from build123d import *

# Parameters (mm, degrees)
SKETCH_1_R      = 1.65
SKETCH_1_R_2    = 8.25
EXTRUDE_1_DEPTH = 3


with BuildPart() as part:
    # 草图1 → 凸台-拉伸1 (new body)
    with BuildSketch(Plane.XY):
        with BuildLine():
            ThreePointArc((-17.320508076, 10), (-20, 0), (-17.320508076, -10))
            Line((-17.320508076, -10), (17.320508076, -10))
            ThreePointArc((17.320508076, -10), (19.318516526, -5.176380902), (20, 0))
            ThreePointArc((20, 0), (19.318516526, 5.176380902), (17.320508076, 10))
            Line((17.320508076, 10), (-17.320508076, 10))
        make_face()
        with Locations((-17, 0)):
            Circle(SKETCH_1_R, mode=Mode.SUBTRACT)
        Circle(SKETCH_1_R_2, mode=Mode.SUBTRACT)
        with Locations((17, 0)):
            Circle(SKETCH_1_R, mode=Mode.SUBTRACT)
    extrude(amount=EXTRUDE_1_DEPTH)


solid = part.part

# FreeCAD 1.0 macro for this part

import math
import FreeCAD as App
import Part
import Sketcher
from FreeCAD import Vector

doc = App.newDocument("Part")
body = doc.addObject("PartDesign::Body", "Body")

# Sketch on XY plane
sketch1 = doc.addObject("Sketcher::SketchObject", "Sketch")
body.addObject(sketch1)
sketch1.AttachmentSupport = (doc.XY_Plane, [""])
sketch1.MapMode = "FlatFace"
sketch1.addGeometry(Part.ArcOfCircle(Part.Circle(Vector(0, 0, 0), Vector(0, 0, 1), 20), math.radians(150), math.radians(210)), False)
sketch1.addGeometry(Part.LineSegment(Vector(-17.3, -10, 0), Vector(17.3, -10, 0)), False)
sketch1.addGeometry(Part.ArcOfCircle(Part.Circle(Vector(0, 0, 0), Vector(0, 0, 1), 20), math.radians(-30), math.radians(0)), False)
sketch1.addGeometry(Part.ArcOfCircle(Part.Circle(Vector(0, 0, 0), Vector(0, 0, 1), 20), math.radians(0), math.radians(30)), False)
sketch1.addGeometry(Part.LineSegment(Vector(17.3, 10, 0), Vector(-17.3, 10, 0)), False)
sketch1.addGeometry(Part.Circle(Vector(-17, 0, 0), Vector(0, 0, 1), 1.6), False)
sketch1.addGeometry(Part.Circle(Vector(0, 0, 0), Vector(0, 0, 1), 8.2), False)
sketch1.addGeometry(Part.Circle(Vector(17, 0, 0), Vector(0, 0, 1), 1.6), False)
sketch1.addConstraint(Sketcher.Constraint("Coincident", 0, 2, 1, 1))
sketch1.addConstraint(Sketcher.Constraint("Coincident", 1, 2, 2, 1))
sketch1.addConstraint(Sketcher.Constraint("Tangent", 2, 2, 3, 1))
sketch1.addConstraint(Sketcher.Constraint("Coincident", 3, 2, 4, 1))
sketch1.addConstraint(Sketcher.Constraint("Coincident", 4, 2, 0, 1))
sketch1.addConstraint(Sketcher.Constraint("Horizontal", 1))
sketch1.addConstraint(Sketcher.Constraint("Horizontal", 4))
sketch1.addConstraint(Sketcher.Constraint("Coincident", 0, 3, -1, 1))
sketch1.addConstraint(Sketcher.Constraint("Coincident", 2, 3, -1, 1))
sketch1.addConstraint(Sketcher.Constraint("Coincident", 6, 3, -1, 1))
sketch1.addConstraint(Sketcher.Constraint("Equal", 0, 2))
sketch1.addConstraint(Sketcher.Constraint("Equal", 2, 3))
sketch1.addConstraint(Sketcher.Constraint("Equal", 5, 7))
sketch1.addConstraint(Sketcher.Constraint("Symmetric", 5, 3, 7, 3, -1, 1))
sketch1.addConstraint(Sketcher.Constraint("PointOnObject", 5, 3, -1))
sketch1.addConstraint(Sketcher.Constraint("PointOnObject", 2, 2, -1))
sketch1.addConstraint(Sketcher.Constraint("Vertical", 1, 2, 3, 2))
sketch1.addConstraint(Sketcher.Constraint("Radius", 0, 20.0))
sketch1.addConstraint(Sketcher.Constraint("Diameter", 5, 3.3))
sketch1.addConstraint(Sketcher.Constraint("Diameter", 6, 16.5))
sketch1.addConstraint(Sketcher.Constraint("DistanceX", 5, 3, -1, 1, 17.0))
sketch1.addConstraint(Sketcher.Constraint("DistanceY", 0, 2, -1, 1, 10.0))
pad1 = doc.addObject("PartDesign::Pad", "Pad")
body.addObject(pad1)
pad1.Profile = sketch1
pad1.Length = 3

doc.recompute()
